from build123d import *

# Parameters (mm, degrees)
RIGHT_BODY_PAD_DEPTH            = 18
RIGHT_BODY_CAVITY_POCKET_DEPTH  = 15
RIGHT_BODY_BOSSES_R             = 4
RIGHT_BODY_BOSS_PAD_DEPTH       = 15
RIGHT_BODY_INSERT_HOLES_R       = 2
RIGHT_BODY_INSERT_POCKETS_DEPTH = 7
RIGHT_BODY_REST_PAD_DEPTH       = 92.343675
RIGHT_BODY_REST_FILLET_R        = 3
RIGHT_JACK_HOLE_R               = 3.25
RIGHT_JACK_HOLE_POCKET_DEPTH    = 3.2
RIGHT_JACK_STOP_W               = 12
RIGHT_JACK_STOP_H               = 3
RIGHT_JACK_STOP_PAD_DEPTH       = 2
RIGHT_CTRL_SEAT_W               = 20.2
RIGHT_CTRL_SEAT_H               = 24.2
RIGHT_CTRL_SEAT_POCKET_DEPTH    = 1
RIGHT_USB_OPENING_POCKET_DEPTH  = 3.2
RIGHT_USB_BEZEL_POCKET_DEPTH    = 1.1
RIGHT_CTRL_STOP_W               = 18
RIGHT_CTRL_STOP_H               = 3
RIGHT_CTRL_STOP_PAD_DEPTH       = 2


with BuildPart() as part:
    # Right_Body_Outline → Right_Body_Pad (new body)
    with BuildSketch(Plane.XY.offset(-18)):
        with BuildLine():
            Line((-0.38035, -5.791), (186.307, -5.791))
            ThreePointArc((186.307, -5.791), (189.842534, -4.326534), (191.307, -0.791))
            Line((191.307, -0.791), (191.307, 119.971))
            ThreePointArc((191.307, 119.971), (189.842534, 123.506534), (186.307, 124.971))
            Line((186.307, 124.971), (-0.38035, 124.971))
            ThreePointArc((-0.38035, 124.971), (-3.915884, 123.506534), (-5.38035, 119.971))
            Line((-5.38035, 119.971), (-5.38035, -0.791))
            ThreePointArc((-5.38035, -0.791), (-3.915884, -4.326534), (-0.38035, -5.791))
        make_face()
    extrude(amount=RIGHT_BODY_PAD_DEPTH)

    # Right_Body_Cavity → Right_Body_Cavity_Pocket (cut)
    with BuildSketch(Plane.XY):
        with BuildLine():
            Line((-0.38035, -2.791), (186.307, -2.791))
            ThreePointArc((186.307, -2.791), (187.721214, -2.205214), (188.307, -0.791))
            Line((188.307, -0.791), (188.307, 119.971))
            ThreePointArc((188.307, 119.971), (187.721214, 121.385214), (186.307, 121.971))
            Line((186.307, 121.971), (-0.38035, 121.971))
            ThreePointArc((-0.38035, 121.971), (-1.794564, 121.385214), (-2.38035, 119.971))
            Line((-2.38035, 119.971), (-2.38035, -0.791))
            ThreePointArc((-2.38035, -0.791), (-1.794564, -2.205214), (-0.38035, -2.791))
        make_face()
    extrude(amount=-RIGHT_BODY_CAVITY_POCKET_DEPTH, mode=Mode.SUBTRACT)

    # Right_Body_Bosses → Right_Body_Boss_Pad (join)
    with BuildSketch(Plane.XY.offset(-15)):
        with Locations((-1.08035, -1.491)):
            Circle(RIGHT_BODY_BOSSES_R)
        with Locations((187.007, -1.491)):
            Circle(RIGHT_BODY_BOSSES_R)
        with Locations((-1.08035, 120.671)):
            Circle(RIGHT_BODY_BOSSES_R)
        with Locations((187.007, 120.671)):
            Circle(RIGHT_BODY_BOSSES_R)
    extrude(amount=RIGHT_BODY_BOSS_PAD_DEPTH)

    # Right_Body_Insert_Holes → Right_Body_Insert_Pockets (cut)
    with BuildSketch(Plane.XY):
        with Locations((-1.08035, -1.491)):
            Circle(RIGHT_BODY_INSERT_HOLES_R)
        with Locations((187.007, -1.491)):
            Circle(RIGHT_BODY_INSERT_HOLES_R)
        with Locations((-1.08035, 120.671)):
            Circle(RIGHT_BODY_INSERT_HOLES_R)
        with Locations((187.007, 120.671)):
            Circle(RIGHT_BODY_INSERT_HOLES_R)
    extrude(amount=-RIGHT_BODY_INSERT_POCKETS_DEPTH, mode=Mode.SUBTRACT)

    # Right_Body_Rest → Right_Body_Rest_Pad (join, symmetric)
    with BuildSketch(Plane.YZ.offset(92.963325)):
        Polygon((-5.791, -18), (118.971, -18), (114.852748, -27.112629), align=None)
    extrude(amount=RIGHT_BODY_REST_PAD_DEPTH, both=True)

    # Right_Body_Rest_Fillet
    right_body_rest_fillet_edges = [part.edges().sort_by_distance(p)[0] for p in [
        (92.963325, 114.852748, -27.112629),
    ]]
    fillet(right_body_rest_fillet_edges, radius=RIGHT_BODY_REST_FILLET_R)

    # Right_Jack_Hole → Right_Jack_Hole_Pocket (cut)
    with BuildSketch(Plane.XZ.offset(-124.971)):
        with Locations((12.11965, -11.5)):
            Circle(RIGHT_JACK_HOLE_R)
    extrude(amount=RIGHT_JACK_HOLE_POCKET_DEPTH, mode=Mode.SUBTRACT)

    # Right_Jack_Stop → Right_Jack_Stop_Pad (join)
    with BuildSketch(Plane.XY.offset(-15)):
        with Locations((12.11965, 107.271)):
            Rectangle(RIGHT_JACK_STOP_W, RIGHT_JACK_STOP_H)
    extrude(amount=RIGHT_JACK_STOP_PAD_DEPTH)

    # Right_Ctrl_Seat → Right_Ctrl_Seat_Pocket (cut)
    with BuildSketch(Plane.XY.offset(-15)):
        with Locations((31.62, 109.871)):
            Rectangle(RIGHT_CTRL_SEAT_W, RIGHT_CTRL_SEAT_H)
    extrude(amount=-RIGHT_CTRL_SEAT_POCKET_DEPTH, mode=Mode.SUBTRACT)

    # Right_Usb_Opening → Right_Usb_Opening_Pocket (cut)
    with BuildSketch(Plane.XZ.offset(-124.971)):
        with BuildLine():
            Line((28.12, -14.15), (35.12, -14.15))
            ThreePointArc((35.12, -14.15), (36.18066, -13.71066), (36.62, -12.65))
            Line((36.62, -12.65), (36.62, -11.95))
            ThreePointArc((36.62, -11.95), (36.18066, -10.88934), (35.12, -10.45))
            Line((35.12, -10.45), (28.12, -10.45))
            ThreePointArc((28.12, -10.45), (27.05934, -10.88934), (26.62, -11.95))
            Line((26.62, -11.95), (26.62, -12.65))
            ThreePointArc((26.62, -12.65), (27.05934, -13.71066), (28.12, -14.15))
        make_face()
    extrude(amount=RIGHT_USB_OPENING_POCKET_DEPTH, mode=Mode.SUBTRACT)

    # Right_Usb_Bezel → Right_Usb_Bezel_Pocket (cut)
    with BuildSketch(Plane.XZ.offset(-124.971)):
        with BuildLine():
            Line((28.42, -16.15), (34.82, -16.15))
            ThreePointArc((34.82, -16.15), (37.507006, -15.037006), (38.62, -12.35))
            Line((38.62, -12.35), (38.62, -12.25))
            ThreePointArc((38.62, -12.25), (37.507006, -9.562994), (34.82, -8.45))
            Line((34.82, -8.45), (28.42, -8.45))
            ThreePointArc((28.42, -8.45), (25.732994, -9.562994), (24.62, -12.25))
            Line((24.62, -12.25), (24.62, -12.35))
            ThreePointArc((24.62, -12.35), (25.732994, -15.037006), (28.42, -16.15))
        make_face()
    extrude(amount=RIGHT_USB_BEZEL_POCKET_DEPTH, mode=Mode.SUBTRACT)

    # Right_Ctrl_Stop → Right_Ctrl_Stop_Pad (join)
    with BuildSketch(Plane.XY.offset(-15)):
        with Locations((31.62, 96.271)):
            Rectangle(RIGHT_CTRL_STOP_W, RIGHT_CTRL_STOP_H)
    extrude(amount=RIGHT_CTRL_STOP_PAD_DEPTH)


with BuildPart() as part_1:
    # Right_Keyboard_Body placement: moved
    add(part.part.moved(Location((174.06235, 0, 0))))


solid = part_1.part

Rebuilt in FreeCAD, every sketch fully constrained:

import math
import FreeCAD as App
import Part
import Sketcher

V = App.Vector
Q = App.Units.Quantity


def edges_at(feature, points):
    """Names of the edges that pass closest to the given points."""
    edges = feature.Shape.Edges
    near = lambda p: min(range(len(edges)), key=lambda i: edges[i].distToShape(Part.Vertex(*p))[0])
    return sorted({f"Edge{near(p) + 1}" for p in points})

doc = App.newDocument("Part")
body = doc.addObject("PartDesign::Body", "Body")

# Sketch on XY plane
sketch1 = body.newObject("Sketcher::SketchObject", "Sketch")
sketch1.AttachmentSupport = (doc.getObject("XY_Plane"), [""])
sketch1.MapMode = "FlatFace"
sketch1.AttachmentOffset = App.Placement(V(0, 0, -18), App.Rotation())
sketch1.addGeometry(Part.LineSegment(V(-0.4, -5.8, 0), V(186.3, -5.8, 0)), False)
sketch1.addGeometry(Part.ArcOfCircle(Part.Circle(V(186.3, -0.8, 0), V(0, 0, 1), 5), math.radians(-90), math.radians(0)), False)
sketch1.addGeometry(Part.LineSegment(V(191.3, -0.8, 0), V(191.3, 120, 0)), False)
sketch1.addGeometry(Part.ArcOfCircle(Part.Circle(V(186.3, 120, 0), V(0, 0, 1), 5), math.radians(0), math.radians(90)), False)
sketch1.addGeometry(Part.LineSegment(V(186.3, 125, 0), V(-0.4, 125, 0)), False)
sketch1.addGeometry(Part.ArcOfCircle(Part.Circle(V(-0.4, 120, 0), V(0, 0, 1), 5), math.radians(90), math.radians(180)), False)
sketch1.addGeometry(Part.LineSegment(V(-5.4, 120, 0), V(-5.4, -0.8, 0)), False)
sketch1.addGeometry(Part.ArcOfCircle(Part.Circle(V(-0.4, -0.8, 0), V(0, 0, 1), 5), math.radians(180), math.radians(270)), False)
sketch1.addConstraint(Sketcher.Constraint("Tangent", 0, 2, 1, 1))
sketch1.addConstraint(Sketcher.Constraint("Tangent", 1, 2, 2, 1))
sketch1.addConstraint(Sketcher.Constraint("Tangent", 2, 2, 3, 1))
sketch1.addConstraint(Sketcher.Constraint("Tangent", 3, 2, 4, 1))
sketch1.addConstraint(Sketcher.Constraint("Tangent", 4, 2, 5, 1))
sketch1.addConstraint(Sketcher.Constraint("Tangent", 5, 2, 6, 1))
sketch1.addConstraint(Sketcher.Constraint("Tangent", 6, 2, 7, 1))
sketch1.addConstraint(Sketcher.Constraint("Tangent", 7, 2, 0, 1))
sketch1.addConstraint(Sketcher.Constraint("Horizontal", 0))
sketch1.addConstraint(Sketcher.Constraint("Vertical", 2))
sketch1.addConstraint(Sketcher.Constraint("Horizontal", 4))
sketch1.addConstraint(Sketcher.Constraint("Vertical", 6))
sketch1.addConstraint(Sketcher.Constraint("Equal", 1, 3))
sketch1.addConstraint(Sketcher.Constraint("Equal", 3, 5))
sketch1.addConstraint(Sketcher.Constraint("Equal", 5, 7))
sketch1.addConstraint(Sketcher.Constraint("Radius", 1, Q("5 mm")))
sketch1.addConstraint(Sketcher.Constraint("DistanceY", 2, 1, 2, 2, Q("120.762 mm")))
sketch1.addConstraint(Sketcher.Constraint("DistanceX", -1, 1, 1, 3, Q("186.307 mm")))
sketch1.addConstraint(Sketcher.Constraint("DistanceY", 1, 3, -1, 1, Q("0.791 mm")))
sketch1.addConstraint(Sketcher.Constraint("DistanceX", 0, 1, 0, 2, Q("186.68735 mm")))
pad1 = body.newObject("PartDesign::Pad", "Pad")
pad1.Profile = sketch1
pad1.Length = 18

# Sketch on XY plane
sketch2 = body.newObject("Sketcher::SketchObject", "Sketch001")
sketch2.AttachmentSupport = (doc.getObject("XY_Plane"), [""])
sketch2.MapMode = "FlatFace"
sketch2.addGeometry(Part.LineSegment(V(-0.4, -2.8, 0), V(186.3, -2.8, 0)), False)
sketch2.addGeometry(Part.ArcOfCircle(Part.Circle(V(186.3, -0.8, 0), V(0, 0, 1), 2), math.radians(-90), math.radians(0)), False)
sketch2.addGeometry(Part.LineSegment(V(188.3, -0.8, 0), V(188.3, 120, 0)), False)
sketch2.addGeometry(Part.ArcOfCircle(Part.Circle(V(186.3, 120, 0), V(0, 0, 1), 2), math.radians(0), math.radians(90)), False)
sketch2.addGeometry(Part.LineSegment(V(186.3, 122, 0), V(-0.4, 122, 0)), False)
sketch2.addGeometry(Part.ArcOfCircle(Part.Circle(V(-0.4, 120, 0), V(0, 0, 1), 2), math.radians(90), math.radians(180)), False)
sketch2.addGeometry(Part.LineSegment(V(-2.4, 120, 0), V(-2.4, -0.8, 0)), False)
sketch2.addGeometry(Part.ArcOfCircle(Part.Circle(V(-0.4, -0.8, 0), V(0, 0, 1), 2), math.radians(180), math.radians(270)), False)
sketch2.addConstraint(Sketcher.Constraint("Tangent", 0, 2, 1, 1))
sketch2.addConstraint(Sketcher.Constraint("Tangent", 1, 2, 2, 1))
sketch2.addConstraint(Sketcher.Constraint("Tangent", 2, 2, 3, 1))
sketch2.addConstraint(Sketcher.Constraint("Tangent", 3, 2, 4, 1))
sketch2.addConstraint(Sketcher.Constraint("Tangent", 4, 2, 5, 1))
sketch2.addConstraint(Sketcher.Constraint("Tangent", 5, 2, 6, 1))
sketch2.addConstraint(Sketcher.Constraint("Tangent", 6, 2, 7, 1))
sketch2.addConstraint(Sketcher.Constraint("Tangent", 7, 2, 0, 1))
sketch2.addConstraint(Sketcher.Constraint("Horizontal", 0))
sketch2.addConstraint(Sketcher.Constraint("Vertical", 2))
sketch2.addConstraint(Sketcher.Constraint("Horizontal", 4))
sketch2.addConstraint(Sketcher.Constraint("Vertical", 6))
sketch2.addConstraint(Sketcher.Constraint("Equal", 1, 3))
sketch2.addConstraint(Sketcher.Constraint("Equal", 3, 5))
sketch2.addConstraint(Sketcher.Constraint("Equal", 5, 7))
sketch2.addConstraint(Sketcher.Constraint("Radius", 1, Q("1.999999 mm")))
sketch2.addConstraint(Sketcher.Constraint("DistanceY", 2, 1, 2, 2, Q("120.762 mm")))
sketch2.addConstraint(Sketcher.Constraint("DistanceX", -1, 1, 1, 3, Q("186.307001 mm")))
sketch2.addConstraint(Sketcher.Constraint("DistanceY", 1, 3, -1, 1, Q("0.791001 mm")))
sketch2.addConstraint(Sketcher.Constraint("DistanceX", 0, 1, 0, 2, Q("186.68735 mm")))
pocket1 = body.newObject("PartDesign::Pocket", "Pocket")
pocket1.Profile = sketch2
pocket1.Length = 15

# Sketch on XY plane
sketch3 = body.newObject("Sketcher::SketchObject", "Sketch002")
sketch3.AttachmentSupport = (doc.getObject("XY_Plane"), [""])
sketch3.MapMode = "FlatFace"
sketch3.AttachmentOffset = App.Placement(V(0, 0, -15), App.Rotation())
sketch3.addGeometry(Part.Circle(V(-1.1, -1.5, 0), V(0, 0, 1), 4), False)
sketch3.addGeometry(Part.Circle(V(187, -1.5, 0), V(0, 0, 1), 4), False)
sketch3.addGeometry(Part.Circle(V(-1.1, 120.7, 0), V(0, 0, 1), 4), False)
sketch3.addGeometry(Part.Circle(V(187, 120.7, 0), V(0, 0, 1), 4), False)
sketch3.addConstraint(Sketcher.Constraint("Equal", 0, 1))
sketch3.addConstraint(Sketcher.Constraint("Equal", 1, 2))
sketch3.addConstraint(Sketcher.Constraint("Equal", 2, 3))
sketch3.addConstraint(Sketcher.Constraint("Horizontal", 0, 3, 1, 3))
sketch3.addConstraint(Sketcher.Constraint("Horizontal", 2, 3, 3, 3))
sketch3.addConstraint(Sketcher.Constraint("Vertical", 0, 3, 2, 3))
sketch3.addConstraint(Sketcher.Constraint("Vertical", 1, 3, 3, 3))
sketch3.addConstraint(Sketcher.Constraint("Diameter", 0, Q("8 mm")))
sketch3.addConstraint(Sketcher.Constraint("DistanceY", 0, 3, -1, 1, Q("1.491 mm")))
sketch3.addConstraint(Sketcher.Constraint("DistanceX", -1, 1, 1, 3, Q("187.007 mm")))
sketch3.addConstraint(Sketcher.Constraint("DistanceY", -1, 1, 2, 3, Q("120.671 mm")))
sketch3.addConstraint(Sketcher.Constraint("DistanceX", 0, 3, -1, 1, Q("1.08035 mm")))
pad2 = body.newObject("PartDesign::Pad", "Pad001")
pad2.Profile = sketch3
pad2.Length = 15

# Sketch on XY plane
sketch4 = body.newObject("Sketcher::SketchObject", "Sketch003")
sketch4.AttachmentSupport = (doc.getObject("XY_Plane"), [""])
sketch4.MapMode = "FlatFace"
sketch4.addGeometry(Part.Circle(V(-1.1, -1.5, 0), V(0, 0, 1), 2), False)
sketch4.addGeometry(Part.Circle(V(187, -1.5, 0), V(0, 0, 1), 2), False)
sketch4.addGeometry(Part.Circle(V(-1.1, 120.7, 0), V(0, 0, 1), 2), False)
sketch4.addGeometry(Part.Circle(V(187, 120.7, 0), V(0, 0, 1), 2), False)
sketch4.addConstraint(Sketcher.Constraint("Equal", 0, 1))
sketch4.addConstraint(Sketcher.Constraint("Equal", 1, 2))
sketch4.addConstraint(Sketcher.Constraint("Equal", 2, 3))
sketch4.addConstraint(Sketcher.Constraint("Horizontal", 0, 3, 1, 3))
sketch4.addConstraint(Sketcher.Constraint("Horizontal", 2, 3, 3, 3))
sketch4.addConstraint(Sketcher.Constraint("Vertical", 0, 3, 2, 3))
sketch4.addConstraint(Sketcher.Constraint("Vertical", 1, 3, 3, 3))
sketch4.addConstraint(Sketcher.Constraint("Diameter", 0, Q("4 mm")))
sketch4.addConstraint(Sketcher.Constraint("DistanceY", 0, 3, -1, 1, Q("1.491 mm")))
sketch4.addConstraint(Sketcher.Constraint("DistanceX", -1, 1, 1, 3, Q("187.007 mm")))
sketch4.addConstraint(Sketcher.Constraint("DistanceY", -1, 1, 2, 3, Q("120.671 mm")))
sketch4.addConstraint(Sketcher.Constraint("DistanceX", 0, 3, -1, 1, Q("1.08035 mm")))
pocket2 = body.newObject("PartDesign::Pocket", "Pocket001")
pocket2.Profile = sketch4
pocket2.Length = 7

# Sketch on YZ plane
sketch5 = body.newObject("Sketcher::SketchObject", "Sketch004")
sketch5.AttachmentSupport = (doc.getObject("YZ_Plane"), [""])
sketch5.MapMode = "FlatFace"
sketch5.AttachmentOffset = App.Placement(V(0, 0, 92.963325), App.Rotation())
sketch5.addGeometry(Part.LineSegment(V(119, -18, 0), V(-6, -18, 0)), False)
sketch5.addGeometry(Part.LineSegment(V(-6, -18, 0), V(115, -27, 0)), False)
sketch5.addGeometry(Part.LineSegment(V(115, -27, 0), V(119, -18, 0)), False)
sketch5.addConstraint(Sketcher.Constraint("Coincident", 0, 2, 1, 1))
sketch5.addConstraint(Sketcher.Constraint("Coincident", 1, 2, 2, 1))
sketch5.addConstraint(Sketcher.Constraint("Coincident", 2, 2, 0, 1))
sketch5.addConstraint(Sketcher.Constraint("Horizontal", 0))
sketch5.addConstraint(Sketcher.Constraint("Distance", 2, Q("10 mm")))
sketch5.addConstraint(Sketcher.Constraint("DistanceY", 0, 2, -1, 1, Q("18 mm")))
sketch5.addConstraint(Sketcher.Constraint("DistanceX", 0, 2, 0, 1, Q("124.762 mm")))
sketch5.addConstraint(Sketcher.Constraint("DistanceX", 0, 2, -1, 1, Q("5.791 mm")))
sketch5.addConstraint(Sketcher.Constraint("DistanceX", -1, 1, 1, 2, Q("114.852748 mm")))
pad3 = body.newObject("PartDesign::Pad", "Pad002")
pad3.Profile = sketch5
pad3.Length = 184.68735
pad3.Midplane = True
doc.recompute()

fillet = body.newObject("PartDesign::Fillet", "Fillet")
fillet.Base = (pad3, edges_at(pad3, [(92.963, 114.853, -27.113)]))
fillet.Radius = 3

# Sketch on XZ plane
sketch6 = body.newObject("Sketcher::SketchObject", "Sketch005")
sketch6.AttachmentSupport = (doc.getObject("XZ_Plane"), [""])
sketch6.MapMode = "FlatFace"
sketch6.AttachmentOffset = App.Placement(V(0, 0, -124.971), App.Rotation())
sketch6.addGeometry(Part.Circle(V(12.1, -11.5, 0), V(0, 0, 1), 3.2), False)
sketch6.addConstraint(Sketcher.Constraint("Diameter", 0, Q("6.5 mm")))
sketch6.addConstraint(Sketcher.Constraint("DistanceY", 0, 3, -1, 1, Q("11.5 mm")))
sketch6.addConstraint(Sketcher.Constraint("DistanceX", -1, 1, 0, 3, Q("12.11965 mm")))
pocket3 = body.newObject("PartDesign::Pocket", "Pocket002")
pocket3.Profile = sketch6
pocket3.Length = 3.2
pocket3.Reversed = True

# Sketch on XY plane
sketch7 = body.newObject("Sketcher::SketchObject", "Sketch006")
sketch7.AttachmentSupport = (doc.getObject("XY_Plane"), [""])
sketch7.MapMode = "FlatFace"
sketch7.AttachmentOffset = App.Placement(V(0, 0, -15), App.Rotation())
sketch7.addGeometry(Part.LineSegment(V(6.1, 108.8, 0), V(6.1, 105.8, 0)), False)
sketch7.addGeometry(Part.LineSegment(V(6.1, 105.8, 0), V(18.1, 105.8, 0)), False)
sketch7.addGeometry(Part.LineSegment(V(18.1, 105.8, 0), V(18.1, 108.8, 0)), False)
sketch7.addGeometry(Part.LineSegment(V(18.1, 108.8, 0), V(6.1, 108.8, 0)), False)
sketch7.addConstraint(Sketcher.Constraint("Coincident", 0, 2, 1, 1))
sketch7.addConstraint(Sketcher.Constraint("Coincident", 1, 2, 2, 1))
sketch7.addConstraint(Sketcher.Constraint("Coincident", 2, 2, 3, 1))
sketch7.addConstraint(Sketcher.Constraint("Coincident", 3, 2, 0, 1))
sketch7.addConstraint(Sketcher.Constraint("Vertical", 0))
sketch7.addConstraint(Sketcher.Constraint("Horizontal", 1))
sketch7.addConstraint(Sketcher.Constraint("Vertical", 2))
sketch7.addConstraint(Sketcher.Constraint("Horizontal", 3))
sketch7.addConstraint(Sketcher.Constraint("DistanceX", 1, 1, 1, 2, Q("12 mm")))
sketch7.addConstraint(Sketcher.Constraint("DistanceY", 0, 2, 0, 1, Q("3 mm")))
sketch7.addConstraint(Sketcher.Constraint("DistanceY", -1, 1, 0, 2, Q("105.771 mm")))
sketch7.addConstraint(Sketcher.Constraint("DistanceX", -1, 1, 0, 2, Q("6.11965 mm")))
pad4 = body.newObject("PartDesign::Pad", "Pad003")
pad4.Profile = sketch7
pad4.Length = 2

# Sketch on XY plane
sketch8 = body.newObject("Sketcher::SketchObject", "Sketch007")
sketch8.AttachmentSupport = (doc.getObject("XY_Plane"), [""])
sketch8.MapMode = "FlatFace"
sketch8.AttachmentOffset = App.Placement(V(0, 0, -15), App.Rotation())
sketch8.addGeometry(Part.LineSegment(V(22, 122, 0), V(22, 98, 0)), False)
sketch8.addGeometry(Part.LineSegment(V(22, 98, 0), V(42, 98, 0)), False)
sketch8.addGeometry(Part.LineSegment(V(42, 98, 0), V(42, 122, 0)), False)
sketch8.addGeometry(Part.LineSegment(V(42, 122, 0), V(22, 122, 0)), False)
sketch8.addConstraint(Sketcher.Constraint("Coincident", 0, 2, 1, 1))
sketch8.addConstraint(Sketcher.Constraint("Coincident", 1, 2, 2, 1))
sketch8.addConstraint(Sketcher.Constraint("Coincident", 2, 2, 3, 1))
sketch8.addConstraint(Sketcher.Constraint("Coincident", 3, 2, 0, 1))
sketch8.addConstraint(Sketcher.Constraint("Vertical", 0))
sketch8.addConstraint(Sketcher.Constraint("Horizontal", 1))
sketch8.addConstraint(Sketcher.Constraint("Vertical", 2))
sketch8.addConstraint(Sketcher.Constraint("Horizontal", 3))
sketch8.addConstraint(Sketcher.Constraint("DistanceX", 1, 1, 1, 2, Q("20.2 mm")))
sketch8.addConstraint(Sketcher.Constraint("DistanceY", 0, 2, 0, 1, Q("24.2 mm")))
sketch8.addConstraint(Sketcher.Constraint("DistanceX", -1, 1, 0, 2, Q("21.52 mm")))
sketch8.addConstraint(Sketcher.Constraint("DistanceY", -1, 1, 0, 2, Q("97.771 mm")))
pocket4 = body.newObject("PartDesign::Pocket", "Pocket003")
pocket4.Profile = sketch8
pocket4.Length = 1

# Sketch on XZ plane
sketch9 = body.newObject("Sketcher::SketchObject", "Sketch008")
sketch9.AttachmentSupport = (doc.getObject("XZ_Plane"), [""])
sketch9.MapMode = "FlatFace"
sketch9.AttachmentOffset = App.Placement(V(0, 0, -124.971), App.Rotation())
sketch9.addGeometry(Part.LineSegment(V(28.1, -14.2, 0), V(35.1, -14.2, 0)), False)
sketch9.addGeometry(Part.ArcOfCircle(Part.Circle(V(35.1, -12.6, 0), V(0, 0, 1), 1.5), math.radians(-90), math.radians(0)), False)
sketch9.addGeometry(Part.LineSegment(V(36.6, -12.7, 0), V(36.6, -11.9, 0)), False)
sketch9.addGeometry(Part.ArcOfCircle(Part.Circle(V(35.1, -12, 0), V(0, 0, 1), 1.5), math.radians(0), math.radians(90)), False)
sketch9.addGeometry(Part.LineSegment(V(35.1, -10.4, 0), V(28.1, -10.4, 0)), False)
sketch9.addGeometry(Part.ArcOfCircle(Part.Circle(V(28.1, -12, 0), V(0, 0, 1), 1.5), math.radians(90), math.radians(180)), False)
sketch9.addGeometry(Part.LineSegment(V(26.6, -11.9, 0), V(26.6, -12.7, 0)), False)
sketch9.addGeometry(Part.ArcOfCircle(Part.Circle(V(28.1, -12.6, 0), V(0, 0, 1), 1.5), math.radians(-180), math.radians(-90)), False)
sketch9.addConstraint(Sketcher.Constraint("Tangent", 0, 2, 1, 1))
sketch9.addConstraint(Sketcher.Constraint("Tangent", 1, 2, 2, 1))
sketch9.addConstraint(Sketcher.Constraint("Tangent", 2, 2, 3, 1))
sketch9.addConstraint(Sketcher.Constraint("Tangent", 3, 2, 4, 1))
sketch9.addConstraint(Sketcher.Constraint("Tangent", 4, 2, 5, 1))
sketch9.addConstraint(Sketcher.Constraint("Tangent", 5, 2, 6, 1))
sketch9.addConstraint(Sketcher.Constraint("Tangent", 6, 2, 7, 1))
sketch9.addConstraint(Sketcher.Constraint("Tangent", 7, 2, 0, 1))
sketch9.addConstraint(Sketcher.Constraint("Horizontal", 0))
sketch9.addConstraint(Sketcher.Constraint("Vertical", 2))
sketch9.addConstraint(Sketcher.Constraint("Horizontal", 4))
sketch9.addConstraint(Sketcher.Constraint("Vertical", 6))
sketch9.addConstraint(Sketcher.Constraint("Equal", 1, 3))
sketch9.addConstraint(Sketcher.Constraint("Equal", 3, 5))
sketch9.addConstraint(Sketcher.Constraint("Equal", 5, 7))
sketch9.addConstraint(Sketcher.Constraint("Radius", 1, Q("1.500001 mm")))
sketch9.addConstraint(Sketcher.Constraint("DistanceX", 0, 1, 0, 2, Q("7 mm")))
sketch9.addConstraint(Sketcher.Constraint("DistanceY", 2, 1, 2, 2, Q("0.7 mm")))
sketch9.addConstraint(Sketcher.Constraint("DistanceX", -1, 1, 1, 3, Q("35.119999 mm")))
sketch9.addConstraint(Sketcher.Constraint("DistanceY", 1, 3, -1, 1, Q("12.649999 mm")))
pocket5 = body.newObject("PartDesign::Pocket", "Pocket004")
pocket5.Profile = sketch9
pocket5.Length = 3.2
pocket5.Reversed = True

# Sketch on XZ plane
sketch10 = body.newObject("Sketcher::SketchObject", "Sketch009")
sketch10.AttachmentSupport = (doc.getObject("XZ_Plane"), [""])
sketch10.MapMode = "FlatFace"
sketch10.AttachmentOffset = App.Placement(V(0, 0, -124.971), App.Rotation())
sketch10.addGeometry(Part.LineSegment(V(28.42, -16.15, 0), V(34.82, -16.15, 0)), False)
sketch10.addGeometry(Part.ArcOfCircle(Part.Circle(V(34.82, -12.35, 0), V(0, 0, 1), 3.8), math.radians(-90), math.radians(0)), False)
sketch10.addGeometry(Part.LineSegment(V(38.62, -12.35, 0), V(38.62, -12.25, 0)), False)
sketch10.addGeometry(Part.ArcOfCircle(Part.Circle(V(34.82, -12.25, 0), V(0, 0, 1), 3.8), math.radians(0), math.radians(90)), False)
sketch10.addGeometry(Part.LineSegment(V(34.82, -8.45, 0), V(28.42, -8.45, 0)), False)
sketch10.addGeometry(Part.ArcOfCircle(Part.Circle(V(28.42, -12.25, 0), V(0, 0, 1), 3.8), math.radians(90), math.radians(180)), False)
sketch10.addGeometry(Part.LineSegment(V(24.62, -12.25, 0), V(24.62, -12.35, 0)), False)
sketch10.addGeometry(Part.ArcOfCircle(Part.Circle(V(28.42, -12.35, 0), V(0, 0, 1), 3.8), math.radians(180), math.radians(270)), False)
sketch10.addConstraint(Sketcher.Constraint("Tangent", 0, 2, 1, 1))
sketch10.addConstraint(Sketcher.Constraint("Tangent", 1, 2, 2, 1))
sketch10.addConstraint(Sketcher.Constraint("Tangent", 2, 2, 3, 1))
sketch10.addConstraint(Sketcher.Constraint("Tangent", 3, 2, 4, 1))
sketch10.addConstraint(Sketcher.Constraint("Tangent", 4, 2, 5, 1))
sketch10.addConstraint(Sketcher.Constraint("Tangent", 5, 2, 6, 1))
sketch10.addConstraint(Sketcher.Constraint("Tangent", 6, 2, 7, 1))
sketch10.addConstraint(Sketcher.Constraint("Tangent", 7, 2, 0, 1))
sketch10.addConstraint(Sketcher.Constraint("Horizontal", 0))
sketch10.addConstraint(Sketcher.Constraint("Vertical", 2))
sketch10.addConstraint(Sketcher.Constraint("Horizontal", 4))
sketch10.addConstraint(Sketcher.Constraint("Vertical", 6))
sketch10.addConstraint(Sketcher.Constraint("Equal", 1, 3))
sketch10.addConstraint(Sketcher.Constraint("Equal", 3, 5))
sketch10.addConstraint(Sketcher.Constraint("Equal", 5, 7))
sketch10.addConstraint(Sketcher.Constraint("Radius", 1, Q("3.799999 mm")))
sketch10.addConstraint(Sketcher.Constraint("DistanceX", 0, 1, 0, 2, Q("6.4 mm")))
sketch10.addConstraint(Sketcher.Constraint("DistanceY", 2, 1, 2, 2, Q("0.1 mm")))
sketch10.addConstraint(Sketcher.Constraint("DistanceX", -1, 1, 1, 3, Q("34.820001 mm")))
sketch10.addConstraint(Sketcher.Constraint("DistanceY", 1, 3, -1, 1, Q("12.350001 mm")))
pocket6 = body.newObject("PartDesign::Pocket", "Pocket005")
pocket6.Profile = sketch10
pocket6.Length = 1.1
pocket6.Reversed = True

# Sketch on XY plane
sketch11 = body.newObject("Sketcher::SketchObject", "Sketch010")
sketch11.AttachmentSupport = (doc.getObject("XY_Plane"), [""])
sketch11.MapMode = "FlatFace"
sketch11.AttachmentOffset = App.Placement(V(0, 0, -15), App.Rotation())
sketch11.addGeometry(Part.LineSegment(V(22.6, 97.8, 0), V(22.6, 94.8, 0)), False)
sketch11.addGeometry(Part.LineSegment(V(22.6, 94.8, 0), V(40.6, 94.8, 0)), False)
sketch11.addGeometry(Part.LineSegment(V(40.6, 94.8, 0), V(40.6, 97.8, 0)), False)
sketch11.addGeometry(Part.LineSegment(V(40.6, 97.8, 0), V(22.6, 97.8, 0)), False)
sketch11.addConstraint(Sketcher.Constraint("Coincident", 0, 2, 1, 1))
sketch11.addConstraint(Sketcher.Constraint("Coincident", 1, 2, 2, 1))
sketch11.addConstraint(Sketcher.Constraint("Coincident", 2, 2, 3, 1))
sketch11.addConstraint(Sketcher.Constraint("Coincident", 3, 2, 0, 1))
sketch11.addConstraint(Sketcher.Constraint("Vertical", 0))
sketch11.addConstraint(Sketcher.Constraint("Horizontal", 1))
sketch11.addConstraint(Sketcher.Constraint("Vertical", 2))
sketch11.addConstraint(Sketcher.Constraint("Horizontal", 3))
sketch11.addConstraint(Sketcher.Constraint("DistanceX", 1, 1, 1, 2, Q("18 mm")))
sketch11.addConstraint(Sketcher.Constraint("DistanceY", 0, 2, 0, 1, Q("3 mm")))
sketch11.addConstraint(Sketcher.Constraint("DistanceX", -1, 1, 0, 2, Q("22.62 mm")))
sketch11.addConstraint(Sketcher.Constraint("DistanceY", -1, 1, 0, 2, Q("94.771 mm")))
pad5 = body.newObject("PartDesign::Pad", "Pad004")
pad5.Profile = sketch11
pad5.Length = 2
body2 = doc.addObject("PartDesign::Body", "Body001")
doc.recompute()

body.Placement = App.Placement(V(174.06235, 0, 0), App.Rotation(V(0, 0, 1), 0))
boolean = body2.newObject("PartDesign::Boolean", "Boolean")
boolean.Type = "Fuse"
boolean.addObjects([body])

doc.recompute()
